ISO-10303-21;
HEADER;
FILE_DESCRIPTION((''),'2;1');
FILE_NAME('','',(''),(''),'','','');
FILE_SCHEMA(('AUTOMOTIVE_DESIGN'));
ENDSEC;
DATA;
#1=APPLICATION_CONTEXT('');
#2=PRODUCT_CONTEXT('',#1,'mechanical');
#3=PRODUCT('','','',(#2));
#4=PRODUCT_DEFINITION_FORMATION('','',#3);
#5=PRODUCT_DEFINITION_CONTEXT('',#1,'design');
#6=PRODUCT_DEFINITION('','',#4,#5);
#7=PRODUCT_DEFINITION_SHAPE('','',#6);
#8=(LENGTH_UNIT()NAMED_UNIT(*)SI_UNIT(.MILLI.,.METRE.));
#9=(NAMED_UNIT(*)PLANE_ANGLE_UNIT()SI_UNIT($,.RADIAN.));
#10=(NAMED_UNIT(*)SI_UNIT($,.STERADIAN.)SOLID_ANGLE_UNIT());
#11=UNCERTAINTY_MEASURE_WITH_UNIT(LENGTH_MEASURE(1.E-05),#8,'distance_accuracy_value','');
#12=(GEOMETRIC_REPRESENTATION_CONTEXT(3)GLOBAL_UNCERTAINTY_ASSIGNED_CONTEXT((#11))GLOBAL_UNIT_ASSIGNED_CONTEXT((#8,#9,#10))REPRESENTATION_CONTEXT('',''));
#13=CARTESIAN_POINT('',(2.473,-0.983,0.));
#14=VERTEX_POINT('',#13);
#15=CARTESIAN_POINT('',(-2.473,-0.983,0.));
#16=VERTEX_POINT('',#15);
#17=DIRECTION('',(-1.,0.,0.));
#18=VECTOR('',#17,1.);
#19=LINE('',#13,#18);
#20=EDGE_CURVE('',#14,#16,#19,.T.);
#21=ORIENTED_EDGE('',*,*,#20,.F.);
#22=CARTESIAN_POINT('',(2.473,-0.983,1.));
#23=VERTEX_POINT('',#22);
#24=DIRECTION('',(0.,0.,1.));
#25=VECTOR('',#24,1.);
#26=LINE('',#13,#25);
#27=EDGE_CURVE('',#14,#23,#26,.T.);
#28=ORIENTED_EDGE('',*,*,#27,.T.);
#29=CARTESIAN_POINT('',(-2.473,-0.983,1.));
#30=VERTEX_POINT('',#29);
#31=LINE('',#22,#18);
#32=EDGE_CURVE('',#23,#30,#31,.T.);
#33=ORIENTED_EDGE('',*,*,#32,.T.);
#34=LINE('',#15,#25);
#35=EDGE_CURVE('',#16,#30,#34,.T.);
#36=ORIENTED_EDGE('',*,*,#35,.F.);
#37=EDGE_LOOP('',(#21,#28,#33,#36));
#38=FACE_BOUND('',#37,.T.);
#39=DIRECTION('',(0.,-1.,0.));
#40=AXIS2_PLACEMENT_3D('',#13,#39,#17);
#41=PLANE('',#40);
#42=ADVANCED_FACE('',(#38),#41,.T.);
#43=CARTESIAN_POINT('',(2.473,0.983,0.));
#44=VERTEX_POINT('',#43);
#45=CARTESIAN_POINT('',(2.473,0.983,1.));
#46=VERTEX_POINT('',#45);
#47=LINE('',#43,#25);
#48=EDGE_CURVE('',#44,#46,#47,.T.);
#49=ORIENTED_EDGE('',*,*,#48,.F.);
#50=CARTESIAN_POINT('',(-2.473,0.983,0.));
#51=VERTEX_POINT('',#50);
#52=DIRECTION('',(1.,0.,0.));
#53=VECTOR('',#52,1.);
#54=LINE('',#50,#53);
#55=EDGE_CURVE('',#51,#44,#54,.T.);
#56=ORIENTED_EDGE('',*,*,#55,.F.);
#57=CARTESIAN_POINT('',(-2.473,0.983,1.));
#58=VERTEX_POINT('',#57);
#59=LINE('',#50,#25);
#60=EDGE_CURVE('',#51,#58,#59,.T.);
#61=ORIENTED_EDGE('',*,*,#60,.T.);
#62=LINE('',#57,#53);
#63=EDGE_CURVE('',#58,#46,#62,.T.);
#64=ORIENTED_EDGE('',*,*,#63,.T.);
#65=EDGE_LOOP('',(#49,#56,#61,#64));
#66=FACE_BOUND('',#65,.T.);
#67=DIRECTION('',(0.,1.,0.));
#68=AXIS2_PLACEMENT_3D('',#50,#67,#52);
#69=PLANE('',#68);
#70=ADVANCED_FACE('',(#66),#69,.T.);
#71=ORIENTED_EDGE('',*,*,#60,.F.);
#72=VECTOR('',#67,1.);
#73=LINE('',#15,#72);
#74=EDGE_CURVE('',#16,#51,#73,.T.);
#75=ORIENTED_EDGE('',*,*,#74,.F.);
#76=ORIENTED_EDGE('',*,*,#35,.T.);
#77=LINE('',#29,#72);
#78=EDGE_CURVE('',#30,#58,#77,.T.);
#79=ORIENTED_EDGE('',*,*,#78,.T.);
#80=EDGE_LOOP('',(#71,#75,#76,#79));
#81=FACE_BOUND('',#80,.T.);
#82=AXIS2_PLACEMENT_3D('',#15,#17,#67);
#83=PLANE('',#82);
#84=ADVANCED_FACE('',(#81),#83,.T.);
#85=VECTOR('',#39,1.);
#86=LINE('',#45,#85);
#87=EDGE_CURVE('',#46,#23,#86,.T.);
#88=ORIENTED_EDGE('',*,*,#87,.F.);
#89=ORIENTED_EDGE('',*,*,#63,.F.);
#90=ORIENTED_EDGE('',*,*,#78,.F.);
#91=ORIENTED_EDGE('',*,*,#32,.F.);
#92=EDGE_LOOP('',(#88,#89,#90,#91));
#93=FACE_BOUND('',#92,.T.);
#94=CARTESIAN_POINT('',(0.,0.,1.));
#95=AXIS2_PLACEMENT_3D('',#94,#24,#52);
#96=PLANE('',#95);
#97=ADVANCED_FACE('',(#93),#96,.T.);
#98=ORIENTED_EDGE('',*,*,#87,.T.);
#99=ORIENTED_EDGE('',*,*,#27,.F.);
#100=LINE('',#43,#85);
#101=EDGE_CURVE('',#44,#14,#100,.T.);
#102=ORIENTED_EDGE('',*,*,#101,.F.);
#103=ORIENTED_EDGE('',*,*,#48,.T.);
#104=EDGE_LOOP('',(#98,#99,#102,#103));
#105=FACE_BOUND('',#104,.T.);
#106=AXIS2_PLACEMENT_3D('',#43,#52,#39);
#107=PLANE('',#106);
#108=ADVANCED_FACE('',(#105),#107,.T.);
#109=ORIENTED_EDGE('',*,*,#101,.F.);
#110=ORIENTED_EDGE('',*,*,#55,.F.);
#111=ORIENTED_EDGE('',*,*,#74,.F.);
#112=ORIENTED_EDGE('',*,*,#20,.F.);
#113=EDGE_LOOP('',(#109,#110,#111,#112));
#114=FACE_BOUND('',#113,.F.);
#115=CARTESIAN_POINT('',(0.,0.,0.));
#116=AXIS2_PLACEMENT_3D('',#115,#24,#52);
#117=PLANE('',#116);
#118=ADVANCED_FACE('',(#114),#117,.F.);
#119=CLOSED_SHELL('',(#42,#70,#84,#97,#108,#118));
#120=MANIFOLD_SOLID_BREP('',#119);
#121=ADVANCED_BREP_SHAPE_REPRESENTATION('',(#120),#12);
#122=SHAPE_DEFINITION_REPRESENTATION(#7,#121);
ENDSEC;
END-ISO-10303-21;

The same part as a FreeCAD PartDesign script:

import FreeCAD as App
import Part
import Sketcher
from FreeCAD import Vector


def add_polygon(sketch, points):
    """Adds a closed chain of lines whose ends are joined by coincident constraints."""
    first, n = sketch.GeometryCount, len(points)
    for a, b in zip(points, points[1:] + points[:1]):
        sketch.addGeometry(Part.LineSegment(App.Vector(*a, 0), App.Vector(*b, 0)), False)
    for i in range(n):
        sketch.addConstraint(Sketcher.Constraint("Coincident", first + i, 2, first + (i + 1) % n, 1))

doc = App.newDocument("Part")
params = doc.addObject("Spreadsheet::Sheet", "Params")
for row, (alias, value) in enumerate([
    ("pad1_length", "1 mm"),
], start=1):
    params.set(f"A{row}", alias)
    params.set(f"B{row}", "=" + value)
    params.setAlias(f"B{row}", alias)

body = doc.addObject("PartDesign::Body", "Body")

# Sketch on XY plane
sketch1 = body.newObject("Sketcher::SketchObject", "Sketch")
sketch1.AttachmentSupport = (doc.getObject("XY_Plane"), [""])
sketch1.MapMode = "FlatFace"
add_polygon(sketch1, [(2.5, 1), (-2.5, 1), (-2.5, -1), (2.5, -1)])  # lines 0-3
sketch1.addConstraint(Sketcher.Constraint("Horizontal", 0))
sketch1.addConstraint(Sketcher.Constraint("Vertical", 1))
sketch1.addConstraint(Sketcher.Constraint("Horizontal", 2))
sketch1.addConstraint(Sketcher.Constraint("Vertical", 3))
sketch1.addConstraint(Sketcher.Constraint("Symmetric", 0, 2, 2, 2, -1, 1))
sketch1.addConstraint(Sketcher.Constraint("DistanceX", 0, 2, 0, 1, 4.946))
sketch1.addConstraint(Sketcher.Constraint("DistanceY", 1, 2, 1, 1, 1.966))
pad1 = body.newObject("PartDesign::Pad", "Pad")
pad1.Profile = sketch1
pad1.setExpression("Length", "Params.pad1_length")

doc.recompute()
